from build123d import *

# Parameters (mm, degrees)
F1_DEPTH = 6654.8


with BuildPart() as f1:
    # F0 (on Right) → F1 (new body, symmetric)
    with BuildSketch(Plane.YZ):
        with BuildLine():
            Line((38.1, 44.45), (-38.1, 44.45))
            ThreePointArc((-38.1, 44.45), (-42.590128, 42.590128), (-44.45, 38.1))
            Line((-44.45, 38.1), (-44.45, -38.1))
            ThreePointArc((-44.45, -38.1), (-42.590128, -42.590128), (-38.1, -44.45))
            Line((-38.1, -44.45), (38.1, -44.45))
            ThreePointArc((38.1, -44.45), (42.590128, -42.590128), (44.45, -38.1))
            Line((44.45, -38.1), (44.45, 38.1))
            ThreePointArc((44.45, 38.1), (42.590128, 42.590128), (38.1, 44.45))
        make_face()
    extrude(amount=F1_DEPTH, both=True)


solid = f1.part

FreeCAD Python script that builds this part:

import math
import FreeCAD as App
import Part
import Sketcher
from FreeCAD import Vector
Q = App.Units.Quantity

doc = App.newDocument("Part")
body = doc.addObject("PartDesign::Body", "Body")

# Sketch on YZ plane
sketch1 = body.newObject("Sketcher::SketchObject", "Sketch")
sketch1.AttachmentSupport = (doc.getObject("YZ_Plane"), [""])
sketch1.MapMode = "FlatFace"
sketch1.addGeometry(Part.LineSegment(Vector(38, 44, 0), Vector(-38, 44, 0)), False)
sketch1.addGeometry(Part.ArcOfCircle(Part.Circle(Vector(-38, 38, 0), Vector(0, 0, 1), 6), math.radians(90), math.radians(180)), False)
sketch1.addGeometry(Part.LineSegment(Vector(-44, 38, 0), Vector(-44, -38, 0)), False)
sketch1.addGeometry(Part.ArcOfCircle(Part.Circle(Vector(-38, -38, 0), Vector(0, 0, 1), 6), math.radians(-180), math.radians(-90)), False)
sketch1.addGeometry(Part.LineSegment(Vector(-38, -44, 0), Vector(38, -44, 0)), False)
sketch1.addGeometry(Part.ArcOfCircle(Part.Circle(Vector(38, -38, 0), Vector(0, 0, 1), 6), math.radians(-90), math.radians(0)), False)
sketch1.addGeometry(Part.LineSegment(Vector(44, -38, 0), Vector(44, 38, 0)), False)
sketch1.addGeometry(Part.ArcOfCircle(Part.Circle(Vector(38, 38, 0), Vector(0, 0, 1), 6), math.radians(0), math.radians(90)), False)
sketch1.addConstraint(Sketcher.Constraint("Tangent", 0, 2, 1, 1))
sketch1.addConstraint(Sketcher.Constraint("Tangent", 1, 2, 2, 1))
sketch1.addConstraint(Sketcher.Constraint("Tangent", 2, 2, 3, 1))
sketch1.addConstraint(Sketcher.Constraint("Tangent", 3, 2, 4, 1))
sketch1.addConstraint(Sketcher.Constraint("Tangent", 4, 2, 5, 1))
sketch1.addConstraint(Sketcher.Constraint("Tangent", 5, 2, 6, 1))
sketch1.addConstraint(Sketcher.Constraint("Tangent", 6, 2, 7, 1))
sketch1.addConstraint(Sketcher.Constraint("Tangent", 7, 2, 0, 1))
sketch1.addConstraint(Sketcher.Constraint("Horizontal", 0))
sketch1.addConstraint(Sketcher.Constraint("Vertical", 2))
sketch1.addConstraint(Sketcher.Constraint("Horizontal", 4))
sketch1.addConstraint(Sketcher.Constraint("Vertical", 6))
sketch1.addConstraint(Sketcher.Constraint("Equal", 1, 3))
sketch1.addConstraint(Sketcher.Constraint("Equal", 3, 5))
sketch1.addConstraint(Sketcher.Constraint("Equal", 5, 7))
sketch1.addConstraint(Sketcher.Constraint("Symmetric", 1, 3, 5, 3, -1, 1))
sketch1.addConstraint(Sketcher.Constraint("Equal", 4, 2))
sketch1.addConstraint(Sketcher.Constraint("DistanceX", 0, 2, 0, 1, Q("3 in")))
sketch1.addConstraint(Sketcher.Constraint("Radius", 1, Q("0.25 in")))
pad1 = body.newObject("PartDesign::Pad", "Pad")
pad1.Profile = sketch1
pad1.Length = Q("524 in")
pad1.Midplane = True

doc.recompute()
